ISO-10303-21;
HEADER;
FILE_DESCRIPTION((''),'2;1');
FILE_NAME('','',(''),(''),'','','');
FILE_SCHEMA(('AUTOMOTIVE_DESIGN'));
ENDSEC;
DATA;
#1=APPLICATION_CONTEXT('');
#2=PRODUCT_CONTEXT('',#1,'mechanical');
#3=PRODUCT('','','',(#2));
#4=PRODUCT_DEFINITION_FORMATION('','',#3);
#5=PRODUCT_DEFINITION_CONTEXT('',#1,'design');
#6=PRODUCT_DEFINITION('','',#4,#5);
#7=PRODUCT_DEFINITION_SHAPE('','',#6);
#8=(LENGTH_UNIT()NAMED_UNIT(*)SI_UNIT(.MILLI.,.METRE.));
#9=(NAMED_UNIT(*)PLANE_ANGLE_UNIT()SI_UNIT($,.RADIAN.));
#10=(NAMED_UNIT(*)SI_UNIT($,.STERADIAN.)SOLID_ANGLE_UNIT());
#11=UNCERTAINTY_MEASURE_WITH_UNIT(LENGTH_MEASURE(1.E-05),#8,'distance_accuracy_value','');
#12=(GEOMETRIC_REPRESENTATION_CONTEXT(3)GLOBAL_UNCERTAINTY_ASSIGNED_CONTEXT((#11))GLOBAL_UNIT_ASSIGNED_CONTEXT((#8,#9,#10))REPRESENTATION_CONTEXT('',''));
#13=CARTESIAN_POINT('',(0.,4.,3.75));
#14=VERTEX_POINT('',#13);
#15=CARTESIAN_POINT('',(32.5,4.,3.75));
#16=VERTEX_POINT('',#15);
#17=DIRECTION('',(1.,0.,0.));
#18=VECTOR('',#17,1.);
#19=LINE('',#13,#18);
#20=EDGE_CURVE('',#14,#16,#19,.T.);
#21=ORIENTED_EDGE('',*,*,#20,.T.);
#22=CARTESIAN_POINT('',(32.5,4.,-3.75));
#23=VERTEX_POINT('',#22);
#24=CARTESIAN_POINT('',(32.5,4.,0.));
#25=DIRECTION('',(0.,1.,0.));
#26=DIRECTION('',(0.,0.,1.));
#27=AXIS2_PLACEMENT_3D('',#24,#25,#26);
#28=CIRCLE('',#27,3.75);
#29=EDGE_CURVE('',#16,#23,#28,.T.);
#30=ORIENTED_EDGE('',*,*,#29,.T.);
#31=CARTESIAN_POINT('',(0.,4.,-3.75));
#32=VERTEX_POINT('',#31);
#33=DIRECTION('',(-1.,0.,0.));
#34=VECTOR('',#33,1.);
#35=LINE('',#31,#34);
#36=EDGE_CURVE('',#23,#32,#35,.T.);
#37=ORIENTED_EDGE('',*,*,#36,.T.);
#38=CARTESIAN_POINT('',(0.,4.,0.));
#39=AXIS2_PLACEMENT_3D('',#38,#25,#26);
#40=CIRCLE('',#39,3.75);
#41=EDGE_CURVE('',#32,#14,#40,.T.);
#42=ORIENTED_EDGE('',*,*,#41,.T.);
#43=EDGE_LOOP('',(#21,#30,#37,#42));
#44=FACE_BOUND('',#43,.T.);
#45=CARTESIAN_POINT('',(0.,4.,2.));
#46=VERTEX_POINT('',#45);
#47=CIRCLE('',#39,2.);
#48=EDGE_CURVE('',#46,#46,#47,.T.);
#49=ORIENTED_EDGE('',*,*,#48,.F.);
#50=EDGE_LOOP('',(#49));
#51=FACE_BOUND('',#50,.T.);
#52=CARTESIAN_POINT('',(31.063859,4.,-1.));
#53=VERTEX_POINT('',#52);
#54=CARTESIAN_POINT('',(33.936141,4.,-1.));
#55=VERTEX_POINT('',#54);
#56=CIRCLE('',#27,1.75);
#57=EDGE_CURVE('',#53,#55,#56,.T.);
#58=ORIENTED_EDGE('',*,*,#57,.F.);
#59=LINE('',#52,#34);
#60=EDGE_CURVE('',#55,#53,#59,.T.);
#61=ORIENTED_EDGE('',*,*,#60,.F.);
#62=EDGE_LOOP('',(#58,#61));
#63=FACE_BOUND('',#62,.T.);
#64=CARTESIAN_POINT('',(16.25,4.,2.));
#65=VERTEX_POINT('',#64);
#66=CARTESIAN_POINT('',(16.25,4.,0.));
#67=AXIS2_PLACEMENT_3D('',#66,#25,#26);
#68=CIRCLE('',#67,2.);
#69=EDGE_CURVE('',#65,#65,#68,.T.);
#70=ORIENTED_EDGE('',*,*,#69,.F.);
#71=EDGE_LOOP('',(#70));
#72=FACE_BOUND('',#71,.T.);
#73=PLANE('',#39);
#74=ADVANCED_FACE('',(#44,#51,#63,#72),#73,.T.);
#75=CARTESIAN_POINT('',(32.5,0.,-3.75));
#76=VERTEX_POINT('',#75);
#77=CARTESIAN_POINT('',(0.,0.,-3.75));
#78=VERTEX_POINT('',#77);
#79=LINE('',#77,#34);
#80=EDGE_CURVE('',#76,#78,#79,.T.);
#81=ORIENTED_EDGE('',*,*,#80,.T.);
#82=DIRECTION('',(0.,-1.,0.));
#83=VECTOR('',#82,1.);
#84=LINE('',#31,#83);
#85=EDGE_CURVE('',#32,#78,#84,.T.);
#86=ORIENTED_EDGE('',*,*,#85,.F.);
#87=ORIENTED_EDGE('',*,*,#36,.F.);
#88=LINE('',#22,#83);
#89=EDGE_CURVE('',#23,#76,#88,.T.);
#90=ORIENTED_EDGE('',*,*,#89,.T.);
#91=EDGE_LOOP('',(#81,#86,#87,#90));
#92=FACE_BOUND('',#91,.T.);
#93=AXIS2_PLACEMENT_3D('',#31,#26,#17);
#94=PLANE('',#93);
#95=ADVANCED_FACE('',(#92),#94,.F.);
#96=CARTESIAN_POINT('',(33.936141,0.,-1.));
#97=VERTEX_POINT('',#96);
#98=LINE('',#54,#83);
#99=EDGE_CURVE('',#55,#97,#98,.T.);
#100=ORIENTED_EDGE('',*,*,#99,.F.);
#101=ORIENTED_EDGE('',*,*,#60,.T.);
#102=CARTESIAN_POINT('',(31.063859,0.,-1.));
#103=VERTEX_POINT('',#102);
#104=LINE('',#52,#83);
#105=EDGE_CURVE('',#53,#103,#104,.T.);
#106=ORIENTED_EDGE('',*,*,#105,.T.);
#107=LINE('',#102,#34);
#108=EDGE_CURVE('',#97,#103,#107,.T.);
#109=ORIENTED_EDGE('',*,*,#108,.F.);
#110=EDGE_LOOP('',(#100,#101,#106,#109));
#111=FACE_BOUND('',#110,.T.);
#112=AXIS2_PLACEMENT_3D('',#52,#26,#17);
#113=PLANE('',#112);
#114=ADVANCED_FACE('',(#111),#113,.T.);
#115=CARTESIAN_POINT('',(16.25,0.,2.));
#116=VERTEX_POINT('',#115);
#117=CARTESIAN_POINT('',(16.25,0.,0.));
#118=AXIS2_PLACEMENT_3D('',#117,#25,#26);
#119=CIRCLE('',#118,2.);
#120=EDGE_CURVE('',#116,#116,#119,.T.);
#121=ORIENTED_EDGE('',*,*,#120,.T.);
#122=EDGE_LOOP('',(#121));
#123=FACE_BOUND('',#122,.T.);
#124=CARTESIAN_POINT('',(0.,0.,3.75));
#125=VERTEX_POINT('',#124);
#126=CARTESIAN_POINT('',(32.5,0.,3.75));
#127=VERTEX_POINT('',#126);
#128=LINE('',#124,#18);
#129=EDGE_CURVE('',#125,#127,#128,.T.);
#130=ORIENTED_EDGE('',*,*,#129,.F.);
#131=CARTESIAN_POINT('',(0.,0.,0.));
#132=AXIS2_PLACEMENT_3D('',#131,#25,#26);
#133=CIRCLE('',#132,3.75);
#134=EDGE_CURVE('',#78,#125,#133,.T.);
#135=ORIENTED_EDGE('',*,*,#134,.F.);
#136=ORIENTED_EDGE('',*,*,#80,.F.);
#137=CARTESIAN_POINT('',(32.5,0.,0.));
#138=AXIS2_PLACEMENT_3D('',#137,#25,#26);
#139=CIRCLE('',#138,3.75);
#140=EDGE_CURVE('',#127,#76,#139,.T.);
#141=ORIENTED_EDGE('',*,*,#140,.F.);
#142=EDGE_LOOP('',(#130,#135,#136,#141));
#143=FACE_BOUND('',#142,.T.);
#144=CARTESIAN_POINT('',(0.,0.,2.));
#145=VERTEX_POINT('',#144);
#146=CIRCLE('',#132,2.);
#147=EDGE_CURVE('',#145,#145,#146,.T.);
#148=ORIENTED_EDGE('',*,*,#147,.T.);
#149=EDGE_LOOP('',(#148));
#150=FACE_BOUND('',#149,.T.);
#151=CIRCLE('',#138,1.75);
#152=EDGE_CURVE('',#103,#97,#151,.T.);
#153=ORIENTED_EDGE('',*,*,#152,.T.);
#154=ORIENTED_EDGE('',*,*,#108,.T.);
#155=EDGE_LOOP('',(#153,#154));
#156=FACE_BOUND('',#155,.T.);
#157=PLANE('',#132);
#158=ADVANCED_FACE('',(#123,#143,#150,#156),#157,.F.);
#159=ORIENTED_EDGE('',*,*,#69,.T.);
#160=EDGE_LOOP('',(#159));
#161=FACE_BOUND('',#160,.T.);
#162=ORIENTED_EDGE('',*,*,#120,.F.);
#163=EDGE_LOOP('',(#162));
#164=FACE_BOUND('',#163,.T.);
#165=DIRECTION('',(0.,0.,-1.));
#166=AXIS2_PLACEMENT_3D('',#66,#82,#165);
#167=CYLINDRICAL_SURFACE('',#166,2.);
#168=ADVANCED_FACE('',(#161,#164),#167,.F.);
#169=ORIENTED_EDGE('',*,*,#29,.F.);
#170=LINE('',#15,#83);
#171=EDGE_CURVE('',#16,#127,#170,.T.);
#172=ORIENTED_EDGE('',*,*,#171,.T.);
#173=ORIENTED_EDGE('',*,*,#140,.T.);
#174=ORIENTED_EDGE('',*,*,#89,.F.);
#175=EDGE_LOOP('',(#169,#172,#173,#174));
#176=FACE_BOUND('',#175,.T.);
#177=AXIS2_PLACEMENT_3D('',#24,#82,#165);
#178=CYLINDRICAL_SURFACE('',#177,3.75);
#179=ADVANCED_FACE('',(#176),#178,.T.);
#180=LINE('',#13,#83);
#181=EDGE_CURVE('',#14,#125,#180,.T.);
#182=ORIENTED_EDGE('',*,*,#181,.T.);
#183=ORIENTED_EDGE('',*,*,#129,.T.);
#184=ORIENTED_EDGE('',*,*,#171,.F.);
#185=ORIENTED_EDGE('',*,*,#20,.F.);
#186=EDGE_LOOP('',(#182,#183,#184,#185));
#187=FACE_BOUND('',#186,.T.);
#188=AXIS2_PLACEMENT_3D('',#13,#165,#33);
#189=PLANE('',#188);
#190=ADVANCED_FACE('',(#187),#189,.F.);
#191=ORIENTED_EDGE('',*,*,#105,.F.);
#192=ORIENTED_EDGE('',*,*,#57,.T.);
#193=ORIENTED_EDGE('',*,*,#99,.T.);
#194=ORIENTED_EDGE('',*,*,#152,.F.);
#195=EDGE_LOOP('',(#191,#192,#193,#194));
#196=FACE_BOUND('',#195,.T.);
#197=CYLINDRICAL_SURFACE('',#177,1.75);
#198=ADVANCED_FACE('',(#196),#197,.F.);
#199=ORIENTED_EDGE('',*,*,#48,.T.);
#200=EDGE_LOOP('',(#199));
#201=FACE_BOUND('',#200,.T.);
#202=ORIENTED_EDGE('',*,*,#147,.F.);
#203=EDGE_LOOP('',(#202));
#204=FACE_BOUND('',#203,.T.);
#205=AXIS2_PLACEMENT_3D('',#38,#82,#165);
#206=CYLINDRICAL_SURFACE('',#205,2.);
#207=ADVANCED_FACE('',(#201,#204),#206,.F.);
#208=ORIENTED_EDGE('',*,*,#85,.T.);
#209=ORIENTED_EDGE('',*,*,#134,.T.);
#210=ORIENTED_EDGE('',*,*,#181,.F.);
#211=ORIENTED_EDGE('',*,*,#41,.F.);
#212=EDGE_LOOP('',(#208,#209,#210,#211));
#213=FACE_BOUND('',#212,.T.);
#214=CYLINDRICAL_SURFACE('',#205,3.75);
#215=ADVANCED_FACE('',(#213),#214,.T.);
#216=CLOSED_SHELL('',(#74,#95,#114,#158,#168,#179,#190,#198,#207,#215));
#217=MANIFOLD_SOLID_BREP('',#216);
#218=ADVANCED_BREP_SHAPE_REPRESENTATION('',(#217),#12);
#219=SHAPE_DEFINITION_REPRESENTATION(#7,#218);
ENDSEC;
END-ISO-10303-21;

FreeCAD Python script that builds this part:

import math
import FreeCAD as App
import Part
import Sketcher
Q = App.Units.Quantity

doc = App.newDocument("Part")
params = doc.addObject("Spreadsheet::Sheet", "Params")
for row, (alias, value) in enumerate([
    ("sketch1_diameter", "4 mm"),
    ("sketch1_radius", "3.75 mm"),
    ("sketch1_radius2", "1.75 mm"),
    ("sketch1_width", "32.5 mm"),
    ("pad1_length", "4 mm"),
], start=1):
    params.set(f"A{row}", alias)
    params.set(f"B{row}", "=" + value)
    params.setAlias(f"B{row}", alias)

body = doc.addObject("PartDesign::Body", "Body")

# Sketch on XZ plane
sketch1 = body.newObject("Sketcher::SketchObject", "Sketch")
sketch1.AttachmentSupport = (doc.getObject("XZ_Plane"), [""])
sketch1.MapMode = "FlatFace"
sketch1.addGeometry([
    Part.LineSegment(App.Vector(32.5, -3.75, 0), App.Vector(0, -3.75, 0)),  # 0
    Part.ArcOfCircle(Part.Circle(App.Vector(0, 0, 0), App.Vector(0, 0, 1), 3.75), math.radians(90), math.radians(270)),  # 1
    Part.LineSegment(App.Vector(0, 3.75, 0), App.Vector(32.5, 3.75, 0)),  # 2
    Part.ArcOfCircle(Part.Circle(App.Vector(32.5, 0, 0), App.Vector(0, 0, 1), 3.75), math.radians(-90), math.radians(90)),  # 3
    Part.LineSegment(App.Vector(31.063859, -1, 0), App.Vector(33.936141, -1, 0)),  # 4
    Part.ArcOfCircle(Part.Circle(App.Vector(32.5, 0, 0), App.Vector(0, 0, 1), 1.75), math.radians(-34.849905), math.radians(214.849905)),  # 5
    Part.Circle(App.Vector(16.25, 0, 0), App.Vector(0, 0, 1), 2),  # 6
    Part.Circle(App.Vector(0, 0, 0), App.Vector(0, 0, 1), 2),  # 7
], False)
sketch1.addConstraint([
    Sketcher.Constraint("Tangent", 0, 2, 1, 2),
    Sketcher.Constraint("Tangent", 1, 1, 2, 1),
    Sketcher.Constraint("Tangent", 2, 2, 3, 2),
    Sketcher.Constraint("Tangent", 3, 1, 0, 1),
    Sketcher.Constraint("Coincident", 4, 1, 5, 2),
    Sketcher.Constraint("Coincident", 5, 1, 4, 2),
    Sketcher.Constraint("Horizontal", 0),
    Sketcher.Constraint("Horizontal", 2),
    Sketcher.Constraint("Horizontal", 4),
    Sketcher.Constraint("Coincident", 1, 3, -1, 1),
    Sketcher.Constraint("Coincident", 7, 3, -1, 1),
    Sketcher.Constraint("Coincident", 5, 3, 3, 3),
    Sketcher.Constraint("Equal", 6, 7),
    Sketcher.Constraint("PointOnObject", 6, 3, -1),
    Sketcher.Constraint("Diameter", 6, Q("4 mm")),
    Sketcher.Constraint("Radius", 1, Q("3.75 mm")),
    Sketcher.Constraint("Radius", 5, Q("1.75 mm")),
    Sketcher.Constraint("DistanceX", 0, 2, 0, 1, Q("32.5 mm")),
    Sketcher.Constraint("DistanceY", 4, 1, -1, 1, Q("1 mm")),
    Sketcher.Constraint("DistanceX", -1, 1, 6, 3, Q("16.25 mm")),
])
sketch1.setExpression("Constraints[14]", "Params.sketch1_diameter")
sketch1.setExpression("Constraints[15]", "Params.sketch1_radius")
sketch1.setExpression("Constraints[16]", "Params.sketch1_radius2")
sketch1.setExpression("Constraints[17]", "Params.sketch1_width")
pad1 = body.newObject("PartDesign::Pad", "Pad")
pad1.Profile = sketch1
pad1.setExpression("Length", "Params.pad1_length")
pad1.Reversed = True

doc.recompute()
